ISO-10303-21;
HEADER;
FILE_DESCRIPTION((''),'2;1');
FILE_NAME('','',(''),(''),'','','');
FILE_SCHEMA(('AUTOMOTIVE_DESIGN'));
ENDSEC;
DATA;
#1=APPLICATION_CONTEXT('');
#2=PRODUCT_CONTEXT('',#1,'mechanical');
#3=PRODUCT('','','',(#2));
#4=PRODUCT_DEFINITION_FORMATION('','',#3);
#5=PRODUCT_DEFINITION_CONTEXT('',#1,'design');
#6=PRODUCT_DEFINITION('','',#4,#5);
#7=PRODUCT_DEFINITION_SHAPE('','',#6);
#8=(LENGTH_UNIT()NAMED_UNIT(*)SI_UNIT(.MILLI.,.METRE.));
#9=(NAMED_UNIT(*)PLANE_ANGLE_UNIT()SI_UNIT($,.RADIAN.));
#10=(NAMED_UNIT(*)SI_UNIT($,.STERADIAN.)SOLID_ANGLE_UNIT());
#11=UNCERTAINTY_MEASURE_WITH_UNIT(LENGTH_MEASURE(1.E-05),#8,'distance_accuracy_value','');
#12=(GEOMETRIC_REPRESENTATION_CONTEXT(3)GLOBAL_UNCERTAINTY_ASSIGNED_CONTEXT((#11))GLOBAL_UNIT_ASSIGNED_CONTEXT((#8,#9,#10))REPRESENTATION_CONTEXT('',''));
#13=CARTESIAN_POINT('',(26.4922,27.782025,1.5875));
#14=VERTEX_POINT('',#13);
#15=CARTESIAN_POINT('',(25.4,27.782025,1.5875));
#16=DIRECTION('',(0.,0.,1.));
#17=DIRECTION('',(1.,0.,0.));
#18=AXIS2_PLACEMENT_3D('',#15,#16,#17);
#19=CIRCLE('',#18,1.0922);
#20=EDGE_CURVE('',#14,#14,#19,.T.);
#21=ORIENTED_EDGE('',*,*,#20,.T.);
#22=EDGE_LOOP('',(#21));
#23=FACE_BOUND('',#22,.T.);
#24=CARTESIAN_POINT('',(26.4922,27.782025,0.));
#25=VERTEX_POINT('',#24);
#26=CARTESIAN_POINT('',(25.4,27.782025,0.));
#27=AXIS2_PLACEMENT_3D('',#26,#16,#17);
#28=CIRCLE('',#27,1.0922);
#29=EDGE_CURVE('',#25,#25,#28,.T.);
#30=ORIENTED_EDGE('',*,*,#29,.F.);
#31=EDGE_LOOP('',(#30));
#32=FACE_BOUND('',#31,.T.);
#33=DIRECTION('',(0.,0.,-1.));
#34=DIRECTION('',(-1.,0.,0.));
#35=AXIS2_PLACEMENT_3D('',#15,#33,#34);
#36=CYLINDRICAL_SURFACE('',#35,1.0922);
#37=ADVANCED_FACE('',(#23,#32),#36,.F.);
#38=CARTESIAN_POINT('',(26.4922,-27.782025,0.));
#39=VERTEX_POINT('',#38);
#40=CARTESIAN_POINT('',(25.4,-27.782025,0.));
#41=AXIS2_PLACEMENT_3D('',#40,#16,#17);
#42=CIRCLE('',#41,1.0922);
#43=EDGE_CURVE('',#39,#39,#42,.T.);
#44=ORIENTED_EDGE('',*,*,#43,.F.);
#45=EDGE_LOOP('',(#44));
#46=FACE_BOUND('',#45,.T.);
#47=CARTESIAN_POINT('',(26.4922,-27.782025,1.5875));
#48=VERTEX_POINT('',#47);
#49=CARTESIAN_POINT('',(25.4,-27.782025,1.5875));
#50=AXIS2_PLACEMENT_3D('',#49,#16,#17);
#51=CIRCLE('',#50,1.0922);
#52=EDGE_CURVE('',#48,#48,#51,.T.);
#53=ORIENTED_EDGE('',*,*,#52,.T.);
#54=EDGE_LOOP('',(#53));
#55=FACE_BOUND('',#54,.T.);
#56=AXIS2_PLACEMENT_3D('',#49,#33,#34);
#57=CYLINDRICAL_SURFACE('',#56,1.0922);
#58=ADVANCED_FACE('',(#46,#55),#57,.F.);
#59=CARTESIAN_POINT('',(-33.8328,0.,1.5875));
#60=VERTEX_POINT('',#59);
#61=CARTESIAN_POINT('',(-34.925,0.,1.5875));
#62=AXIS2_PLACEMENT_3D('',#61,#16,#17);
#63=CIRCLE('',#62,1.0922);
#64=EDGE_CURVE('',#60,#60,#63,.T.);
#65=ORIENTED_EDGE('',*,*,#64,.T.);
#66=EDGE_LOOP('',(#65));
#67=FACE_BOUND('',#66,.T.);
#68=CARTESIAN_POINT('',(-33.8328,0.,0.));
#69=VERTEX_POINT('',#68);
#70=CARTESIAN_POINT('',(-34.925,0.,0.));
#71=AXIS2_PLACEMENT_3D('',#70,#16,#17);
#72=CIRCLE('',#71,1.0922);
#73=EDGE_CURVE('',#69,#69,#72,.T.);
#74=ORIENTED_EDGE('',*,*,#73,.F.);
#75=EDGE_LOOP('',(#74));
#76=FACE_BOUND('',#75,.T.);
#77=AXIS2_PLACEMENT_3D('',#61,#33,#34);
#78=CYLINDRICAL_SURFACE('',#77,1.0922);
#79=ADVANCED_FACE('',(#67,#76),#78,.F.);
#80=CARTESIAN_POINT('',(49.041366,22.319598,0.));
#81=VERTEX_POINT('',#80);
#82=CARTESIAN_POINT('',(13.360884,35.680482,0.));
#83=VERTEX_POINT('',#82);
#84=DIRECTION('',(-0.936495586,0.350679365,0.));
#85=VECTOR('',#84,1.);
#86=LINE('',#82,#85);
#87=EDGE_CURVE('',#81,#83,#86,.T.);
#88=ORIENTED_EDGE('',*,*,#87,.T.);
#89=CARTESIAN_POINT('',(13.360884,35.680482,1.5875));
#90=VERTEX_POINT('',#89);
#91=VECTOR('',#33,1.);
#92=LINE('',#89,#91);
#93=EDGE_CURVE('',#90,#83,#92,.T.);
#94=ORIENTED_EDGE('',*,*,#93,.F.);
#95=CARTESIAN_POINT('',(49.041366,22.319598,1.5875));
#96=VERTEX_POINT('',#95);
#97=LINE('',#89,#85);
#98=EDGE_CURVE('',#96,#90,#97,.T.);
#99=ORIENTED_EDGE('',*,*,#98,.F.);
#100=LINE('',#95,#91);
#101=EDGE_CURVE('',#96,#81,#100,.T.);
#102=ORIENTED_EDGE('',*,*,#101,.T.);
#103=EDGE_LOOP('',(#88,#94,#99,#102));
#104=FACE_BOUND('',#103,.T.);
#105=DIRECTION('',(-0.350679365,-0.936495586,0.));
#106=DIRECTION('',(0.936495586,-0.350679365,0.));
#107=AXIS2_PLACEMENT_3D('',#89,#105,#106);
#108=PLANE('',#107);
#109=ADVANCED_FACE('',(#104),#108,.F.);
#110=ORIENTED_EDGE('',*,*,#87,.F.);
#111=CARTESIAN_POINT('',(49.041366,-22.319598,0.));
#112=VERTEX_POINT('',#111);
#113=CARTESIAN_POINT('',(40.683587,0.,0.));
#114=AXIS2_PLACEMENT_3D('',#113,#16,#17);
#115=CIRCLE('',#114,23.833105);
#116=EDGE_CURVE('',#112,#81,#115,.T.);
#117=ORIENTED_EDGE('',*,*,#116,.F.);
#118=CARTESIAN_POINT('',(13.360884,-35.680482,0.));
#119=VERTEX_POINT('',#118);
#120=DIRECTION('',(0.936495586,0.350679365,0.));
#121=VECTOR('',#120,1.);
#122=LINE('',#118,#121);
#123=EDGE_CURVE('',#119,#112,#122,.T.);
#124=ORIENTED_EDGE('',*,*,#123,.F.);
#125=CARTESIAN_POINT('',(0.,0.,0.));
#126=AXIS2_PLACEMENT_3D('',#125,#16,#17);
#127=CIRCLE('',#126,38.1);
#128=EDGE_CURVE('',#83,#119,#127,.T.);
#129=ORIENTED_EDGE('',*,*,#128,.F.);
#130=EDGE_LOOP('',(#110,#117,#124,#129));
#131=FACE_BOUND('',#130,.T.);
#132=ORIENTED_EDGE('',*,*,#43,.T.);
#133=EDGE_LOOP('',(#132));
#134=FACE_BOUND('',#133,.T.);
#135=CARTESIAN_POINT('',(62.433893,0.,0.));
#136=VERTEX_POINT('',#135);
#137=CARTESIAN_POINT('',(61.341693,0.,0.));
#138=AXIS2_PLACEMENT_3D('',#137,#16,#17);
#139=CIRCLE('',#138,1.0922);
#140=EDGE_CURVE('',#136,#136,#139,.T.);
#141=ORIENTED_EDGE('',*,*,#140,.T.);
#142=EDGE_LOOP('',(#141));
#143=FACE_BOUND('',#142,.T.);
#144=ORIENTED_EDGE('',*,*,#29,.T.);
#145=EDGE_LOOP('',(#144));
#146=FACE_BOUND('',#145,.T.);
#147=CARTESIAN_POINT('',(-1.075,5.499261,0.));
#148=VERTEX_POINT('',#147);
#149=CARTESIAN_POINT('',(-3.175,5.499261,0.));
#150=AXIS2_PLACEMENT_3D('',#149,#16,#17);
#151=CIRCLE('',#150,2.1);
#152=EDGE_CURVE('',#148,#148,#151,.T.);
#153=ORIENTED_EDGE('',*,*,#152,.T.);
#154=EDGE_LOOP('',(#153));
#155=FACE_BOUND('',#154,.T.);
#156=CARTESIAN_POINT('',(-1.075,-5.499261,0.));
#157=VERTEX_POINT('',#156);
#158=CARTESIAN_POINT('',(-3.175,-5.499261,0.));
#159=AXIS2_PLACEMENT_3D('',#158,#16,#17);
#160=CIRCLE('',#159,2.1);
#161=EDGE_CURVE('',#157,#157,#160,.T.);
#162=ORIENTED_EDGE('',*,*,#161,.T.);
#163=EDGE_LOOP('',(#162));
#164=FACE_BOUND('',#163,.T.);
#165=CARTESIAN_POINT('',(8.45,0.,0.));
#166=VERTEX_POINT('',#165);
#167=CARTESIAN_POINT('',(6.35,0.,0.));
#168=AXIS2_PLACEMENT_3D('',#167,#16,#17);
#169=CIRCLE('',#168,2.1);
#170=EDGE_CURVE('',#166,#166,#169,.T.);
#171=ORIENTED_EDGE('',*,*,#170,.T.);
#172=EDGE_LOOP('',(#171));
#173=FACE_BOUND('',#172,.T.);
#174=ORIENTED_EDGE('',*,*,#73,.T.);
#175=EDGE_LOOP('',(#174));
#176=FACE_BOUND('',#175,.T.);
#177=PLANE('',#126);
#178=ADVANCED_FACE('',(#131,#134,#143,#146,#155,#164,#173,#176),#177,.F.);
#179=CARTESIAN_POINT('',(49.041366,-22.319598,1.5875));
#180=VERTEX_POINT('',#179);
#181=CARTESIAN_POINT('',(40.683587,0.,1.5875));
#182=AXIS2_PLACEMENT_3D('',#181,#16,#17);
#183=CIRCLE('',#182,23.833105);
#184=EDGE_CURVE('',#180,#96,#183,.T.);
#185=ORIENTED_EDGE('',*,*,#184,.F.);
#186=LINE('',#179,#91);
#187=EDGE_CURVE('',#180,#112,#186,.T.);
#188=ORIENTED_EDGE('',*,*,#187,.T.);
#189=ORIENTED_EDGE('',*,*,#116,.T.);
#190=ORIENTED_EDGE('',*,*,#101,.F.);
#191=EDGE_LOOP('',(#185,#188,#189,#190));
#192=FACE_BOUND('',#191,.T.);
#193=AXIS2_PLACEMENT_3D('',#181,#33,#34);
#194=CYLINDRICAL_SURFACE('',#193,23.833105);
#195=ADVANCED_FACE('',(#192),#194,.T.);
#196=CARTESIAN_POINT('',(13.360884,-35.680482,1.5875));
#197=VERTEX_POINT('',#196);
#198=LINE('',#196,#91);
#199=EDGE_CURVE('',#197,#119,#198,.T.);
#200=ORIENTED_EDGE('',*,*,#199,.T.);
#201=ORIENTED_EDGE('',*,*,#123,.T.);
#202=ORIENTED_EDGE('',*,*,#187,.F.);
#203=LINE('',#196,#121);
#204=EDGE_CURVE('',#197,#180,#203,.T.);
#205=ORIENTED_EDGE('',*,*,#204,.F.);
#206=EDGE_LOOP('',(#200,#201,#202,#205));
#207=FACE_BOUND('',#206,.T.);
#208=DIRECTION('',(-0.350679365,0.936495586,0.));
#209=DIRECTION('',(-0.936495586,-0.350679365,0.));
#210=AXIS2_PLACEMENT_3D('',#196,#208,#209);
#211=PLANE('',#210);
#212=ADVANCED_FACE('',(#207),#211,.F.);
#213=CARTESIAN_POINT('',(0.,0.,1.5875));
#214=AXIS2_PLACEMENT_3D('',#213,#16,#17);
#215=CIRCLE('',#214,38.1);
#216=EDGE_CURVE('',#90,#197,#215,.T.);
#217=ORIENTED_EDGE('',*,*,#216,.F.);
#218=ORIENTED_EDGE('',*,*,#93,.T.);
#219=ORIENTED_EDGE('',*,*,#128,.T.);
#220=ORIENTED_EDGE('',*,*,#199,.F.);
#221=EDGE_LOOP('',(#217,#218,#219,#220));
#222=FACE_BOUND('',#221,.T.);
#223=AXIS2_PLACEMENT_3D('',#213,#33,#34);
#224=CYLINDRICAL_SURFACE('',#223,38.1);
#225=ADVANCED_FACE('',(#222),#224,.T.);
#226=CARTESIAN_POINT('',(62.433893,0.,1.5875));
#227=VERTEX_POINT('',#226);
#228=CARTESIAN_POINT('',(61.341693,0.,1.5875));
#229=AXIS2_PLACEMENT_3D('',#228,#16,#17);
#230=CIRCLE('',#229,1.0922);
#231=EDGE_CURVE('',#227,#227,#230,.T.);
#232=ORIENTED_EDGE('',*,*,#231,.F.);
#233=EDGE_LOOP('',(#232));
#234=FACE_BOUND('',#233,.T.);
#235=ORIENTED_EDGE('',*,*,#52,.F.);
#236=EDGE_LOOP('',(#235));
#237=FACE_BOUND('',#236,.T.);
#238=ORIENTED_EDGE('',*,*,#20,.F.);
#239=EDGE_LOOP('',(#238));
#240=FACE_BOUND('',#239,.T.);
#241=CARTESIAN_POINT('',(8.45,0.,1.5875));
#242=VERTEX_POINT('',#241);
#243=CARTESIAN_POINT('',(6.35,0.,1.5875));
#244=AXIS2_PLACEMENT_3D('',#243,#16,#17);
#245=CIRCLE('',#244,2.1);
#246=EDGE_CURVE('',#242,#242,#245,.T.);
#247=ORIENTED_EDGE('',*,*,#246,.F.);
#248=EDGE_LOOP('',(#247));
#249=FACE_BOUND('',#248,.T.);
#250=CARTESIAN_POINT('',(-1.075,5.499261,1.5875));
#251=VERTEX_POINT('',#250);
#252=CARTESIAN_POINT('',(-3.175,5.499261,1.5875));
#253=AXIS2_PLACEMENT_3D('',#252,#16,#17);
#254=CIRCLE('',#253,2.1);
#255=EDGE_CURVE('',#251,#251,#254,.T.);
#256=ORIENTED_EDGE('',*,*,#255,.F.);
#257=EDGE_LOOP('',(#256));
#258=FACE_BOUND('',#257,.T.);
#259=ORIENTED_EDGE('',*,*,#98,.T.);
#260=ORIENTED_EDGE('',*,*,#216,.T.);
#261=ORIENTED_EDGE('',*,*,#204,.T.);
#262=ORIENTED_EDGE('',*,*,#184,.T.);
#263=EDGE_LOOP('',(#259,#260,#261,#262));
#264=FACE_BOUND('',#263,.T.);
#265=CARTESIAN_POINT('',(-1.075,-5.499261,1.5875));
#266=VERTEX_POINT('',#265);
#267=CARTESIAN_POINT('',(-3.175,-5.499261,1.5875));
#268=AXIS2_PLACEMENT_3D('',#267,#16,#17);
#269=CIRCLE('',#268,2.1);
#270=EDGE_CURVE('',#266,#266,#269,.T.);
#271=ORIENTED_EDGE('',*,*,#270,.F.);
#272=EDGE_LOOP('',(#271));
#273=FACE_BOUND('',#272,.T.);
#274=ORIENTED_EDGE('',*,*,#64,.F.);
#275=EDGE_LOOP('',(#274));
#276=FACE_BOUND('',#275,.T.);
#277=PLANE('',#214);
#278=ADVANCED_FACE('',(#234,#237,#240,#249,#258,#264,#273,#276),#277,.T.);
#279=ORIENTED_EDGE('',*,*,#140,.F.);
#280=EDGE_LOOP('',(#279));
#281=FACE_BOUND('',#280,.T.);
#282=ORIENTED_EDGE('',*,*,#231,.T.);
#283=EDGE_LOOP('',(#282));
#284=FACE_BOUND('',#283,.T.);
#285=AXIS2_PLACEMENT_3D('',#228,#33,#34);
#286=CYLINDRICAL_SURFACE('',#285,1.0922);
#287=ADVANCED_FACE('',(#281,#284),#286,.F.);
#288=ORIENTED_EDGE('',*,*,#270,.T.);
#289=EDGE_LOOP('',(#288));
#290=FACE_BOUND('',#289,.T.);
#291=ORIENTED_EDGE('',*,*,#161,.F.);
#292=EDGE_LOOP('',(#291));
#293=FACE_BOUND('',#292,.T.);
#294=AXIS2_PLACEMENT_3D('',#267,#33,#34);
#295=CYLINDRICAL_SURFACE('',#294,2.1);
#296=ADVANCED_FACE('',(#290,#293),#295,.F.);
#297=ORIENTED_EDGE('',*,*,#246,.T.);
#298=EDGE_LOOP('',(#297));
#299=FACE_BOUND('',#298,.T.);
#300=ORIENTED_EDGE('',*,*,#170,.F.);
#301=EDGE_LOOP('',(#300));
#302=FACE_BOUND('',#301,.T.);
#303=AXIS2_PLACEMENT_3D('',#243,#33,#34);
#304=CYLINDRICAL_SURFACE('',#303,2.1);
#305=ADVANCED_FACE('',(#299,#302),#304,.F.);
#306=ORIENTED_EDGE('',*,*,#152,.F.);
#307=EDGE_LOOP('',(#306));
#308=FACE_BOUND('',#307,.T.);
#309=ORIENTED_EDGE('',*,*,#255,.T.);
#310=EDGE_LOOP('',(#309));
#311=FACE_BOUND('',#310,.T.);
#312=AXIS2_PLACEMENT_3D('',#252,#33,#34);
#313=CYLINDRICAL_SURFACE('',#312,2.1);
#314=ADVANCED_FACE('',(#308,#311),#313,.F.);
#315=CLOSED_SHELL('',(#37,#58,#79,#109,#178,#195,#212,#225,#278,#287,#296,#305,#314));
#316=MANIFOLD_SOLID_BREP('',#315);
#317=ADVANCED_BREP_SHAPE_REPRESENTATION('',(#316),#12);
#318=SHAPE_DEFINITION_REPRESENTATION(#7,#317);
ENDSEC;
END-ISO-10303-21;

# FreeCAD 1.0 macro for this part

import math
import FreeCAD as App
import Part
import Sketcher

V = App.Vector
Q = App.Units.Quantity

doc = App.newDocument("Part")
body = doc.addObject("PartDesign::Body", "Body")

# Sketch on XY plane
sketch1 = body.newObject("Sketcher::SketchObject", "Sketch")
sketch1.AttachmentSupport = (doc.getObject("XY_Plane"), [""])
sketch1.MapMode = "FlatFace"
sketch1.addGeometry(Part.LineSegment(V(49.041366, 22.319598, 0), V(13.360884, 35.680482, 0)), False)
sketch1.addGeometry(Part.ArcOfCircle(Part.Circle(V(0, 0, 0), V(0, 0, 1), 38.1), math.radians(69.471126), math.radians(290.528874)), False)
sketch1.addGeometry(Part.LineSegment(V(13.360884, -35.680482, 0), V(49.041366, -22.319598, 0)), False)
sketch1.addGeometry(Part.ArcOfCircle(Part.Circle(V(40.683587, 0, 0), V(0, 0, 1), 23.833105), math.radians(-69.471126), math.radians(69.471126)), False)
sketch1.addGeometry(Part.Circle(V(25.4, -27.782025, 0), V(0, 0, 1), 1.0922), False)
sketch1.addGeometry(Part.Circle(V(-3.175, -5.499261, 0), V(0, 0, 1), 2.1), False)
sketch1.addGeometry(Part.Circle(V(61.341693, 0, 0), V(0, 0, 1), 1.0922), False)
sketch1.addGeometry(Part.Circle(V(25.4, 27.782025, 0), V(0, 0, 1), 1.0922), False)
sketch1.addGeometry(Part.Circle(V(6.35, 0, 0), V(0, 0, 1), 2.1), False)
sketch1.addGeometry(Part.Circle(V(-3.175, 5.499261, 0), V(0, 0, 1), 2.1), False)
sketch1.addGeometry(Part.Circle(V(-34.925, 0, 0), V(0, 0, 1), 1.0922), False)
sketch1.addConstraint(Sketcher.Constraint("Tangent", 0, 2, 1, 1))
sketch1.addConstraint(Sketcher.Constraint("Tangent", 1, 2, 2, 1))
sketch1.addConstraint(Sketcher.Constraint("Tangent", 2, 2, 3, 1))
sketch1.addConstraint(Sketcher.Constraint("Tangent", 3, 2, 0, 1))
sketch1.addConstraint(Sketcher.Constraint("Coincident", 1, 3, -1, 1))
sketch1.addConstraint(Sketcher.Constraint("Equal", 4, 6))
sketch1.addConstraint(Sketcher.Constraint("Equal", 6, 7))
sketch1.addConstraint(Sketcher.Constraint("Equal", 5, 8))
sketch1.addConstraint(Sketcher.Constraint("Equal", 8, 9))
sketch1.addConstraint(Sketcher.Constraint("Equal", 7, 10))
sketch1.addConstraint(Sketcher.Constraint("Symmetric", 4, 3, 7, 3, -1))
sketch1.addConstraint(Sketcher.Constraint("Symmetric", 5, 3, 9, 3, -1))
sketch1.addConstraint(Sketcher.Constraint("PointOnObject", 3, 3, -1))
sketch1.addConstraint(Sketcher.Constraint("PointOnObject", 6, 3, -1))
sketch1.addConstraint(Sketcher.Constraint("PointOnObject", 8, 3, -1))
sketch1.addConstraint(Sketcher.Constraint("PointOnObject", 10, 3, -1))
sketch1.addConstraint(Sketcher.Constraint("Radius", 1, Q("1.5 in")))
sketch1.addConstraint(Sketcher.Constraint("Diameter", 4, Q("0.086 in")))
sketch1.addConstraint(Sketcher.Constraint("DistanceX", -1, 1, 4, 3, Q("1 in")))
sketch1.addConstraint(Sketcher.Constraint("Distance", 0, Q("1.5 in")))
sketch1.addConstraint(Sketcher.Constraint("Diameter", 5, Q("4.2 mm")))
sketch1.addConstraint(Sketcher.Constraint("DistanceX", -1, 1, 8, 3, Q("0.25 in")))
sketch1.addConstraint(Sketcher.Constraint("DistanceX", 10, 3, 5, 3, Q("1.25 in")))
sketch1.addConstraint(Sketcher.Constraint("DistanceX", 5, 3, -1, 1, Q("0.125 in")))
sketch1.addConstraint(Sketcher.Constraint("Radius", 3, Q("23.833105 mm")))
sketch1.addConstraint(Sketcher.Constraint("DistanceY", 5, 3, -1, 1, Q("5.499261 mm")))
sketch1.addConstraint(Sketcher.Constraint("DistanceY", 4, 3, 7, 3, Q("55.564051 mm")))
sketch1.addConstraint(Sketcher.Constraint("DistanceX", -1, 1, 6, 3, Q("61.341693 mm")))
pad1 = body.newObject("PartDesign::Pad", "Pad")
pad1.Profile = sketch1
pad1.Length = Q("0.0625 in")

doc.recompute()
